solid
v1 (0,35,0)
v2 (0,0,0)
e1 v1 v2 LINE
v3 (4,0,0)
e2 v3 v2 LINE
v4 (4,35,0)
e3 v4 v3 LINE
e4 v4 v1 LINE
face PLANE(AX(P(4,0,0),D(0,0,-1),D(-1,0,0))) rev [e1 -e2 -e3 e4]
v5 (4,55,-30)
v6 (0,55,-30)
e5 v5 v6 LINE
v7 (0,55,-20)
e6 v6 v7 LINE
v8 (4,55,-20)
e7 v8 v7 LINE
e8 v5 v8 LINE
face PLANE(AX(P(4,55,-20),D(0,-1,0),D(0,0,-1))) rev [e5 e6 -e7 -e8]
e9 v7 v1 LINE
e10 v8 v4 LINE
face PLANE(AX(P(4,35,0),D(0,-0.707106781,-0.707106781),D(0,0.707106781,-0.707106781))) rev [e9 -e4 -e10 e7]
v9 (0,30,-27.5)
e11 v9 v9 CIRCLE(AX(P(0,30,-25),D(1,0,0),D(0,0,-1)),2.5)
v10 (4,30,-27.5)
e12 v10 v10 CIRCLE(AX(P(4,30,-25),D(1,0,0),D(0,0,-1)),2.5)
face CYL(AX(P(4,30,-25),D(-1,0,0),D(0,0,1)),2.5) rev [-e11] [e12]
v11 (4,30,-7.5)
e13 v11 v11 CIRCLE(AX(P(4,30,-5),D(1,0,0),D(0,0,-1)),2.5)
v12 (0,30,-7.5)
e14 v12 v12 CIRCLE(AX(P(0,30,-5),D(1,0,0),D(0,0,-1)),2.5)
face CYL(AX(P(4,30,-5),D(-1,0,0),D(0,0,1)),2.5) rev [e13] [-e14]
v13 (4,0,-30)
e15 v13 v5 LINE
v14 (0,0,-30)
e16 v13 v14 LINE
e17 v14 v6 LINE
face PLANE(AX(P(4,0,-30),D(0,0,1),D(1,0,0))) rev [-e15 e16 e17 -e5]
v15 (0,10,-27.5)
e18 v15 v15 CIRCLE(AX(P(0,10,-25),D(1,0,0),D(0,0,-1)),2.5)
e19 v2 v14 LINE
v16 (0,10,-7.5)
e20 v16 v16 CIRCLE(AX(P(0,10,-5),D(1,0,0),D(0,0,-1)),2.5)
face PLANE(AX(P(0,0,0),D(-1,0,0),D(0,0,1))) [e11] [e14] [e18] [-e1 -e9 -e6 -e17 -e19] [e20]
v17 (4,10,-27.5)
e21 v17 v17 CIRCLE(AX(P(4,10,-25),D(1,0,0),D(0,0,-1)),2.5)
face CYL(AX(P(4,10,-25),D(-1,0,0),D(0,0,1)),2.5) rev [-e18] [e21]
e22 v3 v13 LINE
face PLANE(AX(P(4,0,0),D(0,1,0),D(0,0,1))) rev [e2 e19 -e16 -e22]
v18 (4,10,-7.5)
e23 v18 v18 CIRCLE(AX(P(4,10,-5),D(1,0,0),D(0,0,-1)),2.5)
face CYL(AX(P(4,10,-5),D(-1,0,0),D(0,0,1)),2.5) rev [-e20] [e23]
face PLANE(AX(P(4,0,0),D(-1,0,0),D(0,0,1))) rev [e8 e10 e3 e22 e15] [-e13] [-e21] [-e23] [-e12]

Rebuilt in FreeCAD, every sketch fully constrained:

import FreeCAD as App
import Part
import Sketcher
from FreeCAD import Vector


def add_polygon(sketch, points):
    """Adds a closed chain of lines whose ends are joined by coincident constraints."""
    first, n = sketch.GeometryCount, len(points)
    for a, b in zip(points, points[1:] + points[:1]):
        sketch.addGeometry(Part.LineSegment(App.Vector(*a, 0), App.Vector(*b, 0)), False)
    for i in range(n):
        sketch.addConstraint(Sketcher.Constraint("Coincident", first + i, 2, first + (i + 1) % n, 1))

doc = App.newDocument("Part")
body = doc.addObject("PartDesign::Body", "Body")

sketch1 = body.newObject("Sketcher::SketchObject", "Sketch")
sketch1.AttachmentSupport = (doc.getObject("YZ_Plane"), [""])
sketch1.MapMode = "FlatFace"
add_polygon(sketch1, [(0, 0), (0, -30), (55, -30), (55, -20), (35, 0)])
sketch1.addGeometry(Part.Circle(Vector(10, -5, 0), Vector(0, 0, 1), 2.5), False)
sketch1.addGeometry(Part.Circle(Vector(10, -25, 0), Vector(0, 0, 1), 2.5), False)
sketch1.addGeometry(Part.Circle(Vector(30, -5, 0), Vector(0, 0, 1), 2.5), False)
sketch1.addGeometry(Part.Circle(Vector(30, -25, 0), Vector(0, 0, 1), 2.5), False)
sketch1.addConstraint([
    Sketcher.Constraint("Vertical", 0),
    Sketcher.Constraint("Horizontal", 1),
    Sketcher.Constraint("Vertical", 2),
    Sketcher.Constraint("Horizontal", 4),
    Sketcher.Constraint("Coincident", 4, 2, -1, 1),
    Sketcher.Constraint("Equal", 5, 6),
    Sketcher.Constraint("Equal", 6, 7),
    Sketcher.Constraint("Equal", 7, 8),
    Sketcher.Constraint("Horizontal", 5, 3, 7, 3),
    Sketcher.Constraint("Horizontal", 6, 3, 8, 3),
    Sketcher.Constraint("Vertical", 5, 3, 6, 3),
    Sketcher.Constraint("Vertical", 7, 3, 8, 3),
    Sketcher.Constraint("Diameter", 5, 5.0),
    Sketcher.Constraint("DistanceX", 1, 1, 1, 2, 55.0),
    Sketcher.Constraint("DistanceX", 4, 2, 4, 1, 35.0),
    Sketcher.Constraint("DistanceY", 0, 2, 0, 1, 30.0),
    Sketcher.Constraint("DistanceY", 2, 1, 2, 2, 10.0),
    Sketcher.Constraint("DistanceX", -1, 1, 5, 3, 10.0),
    Sketcher.Constraint("DistanceY", 5, 3, -1, 1, 5.0),
    Sketcher.Constraint("DistanceY", 6, 3, -1, 1, 25.0),
    Sketcher.Constraint("DistanceX", -1, 1, 7, 3, 30.0),
])
pad1 = body.newObject("PartDesign::Pad", "Pad")
pad1.Profile = sketch1
pad1.Length = 4

doc.recompute()
